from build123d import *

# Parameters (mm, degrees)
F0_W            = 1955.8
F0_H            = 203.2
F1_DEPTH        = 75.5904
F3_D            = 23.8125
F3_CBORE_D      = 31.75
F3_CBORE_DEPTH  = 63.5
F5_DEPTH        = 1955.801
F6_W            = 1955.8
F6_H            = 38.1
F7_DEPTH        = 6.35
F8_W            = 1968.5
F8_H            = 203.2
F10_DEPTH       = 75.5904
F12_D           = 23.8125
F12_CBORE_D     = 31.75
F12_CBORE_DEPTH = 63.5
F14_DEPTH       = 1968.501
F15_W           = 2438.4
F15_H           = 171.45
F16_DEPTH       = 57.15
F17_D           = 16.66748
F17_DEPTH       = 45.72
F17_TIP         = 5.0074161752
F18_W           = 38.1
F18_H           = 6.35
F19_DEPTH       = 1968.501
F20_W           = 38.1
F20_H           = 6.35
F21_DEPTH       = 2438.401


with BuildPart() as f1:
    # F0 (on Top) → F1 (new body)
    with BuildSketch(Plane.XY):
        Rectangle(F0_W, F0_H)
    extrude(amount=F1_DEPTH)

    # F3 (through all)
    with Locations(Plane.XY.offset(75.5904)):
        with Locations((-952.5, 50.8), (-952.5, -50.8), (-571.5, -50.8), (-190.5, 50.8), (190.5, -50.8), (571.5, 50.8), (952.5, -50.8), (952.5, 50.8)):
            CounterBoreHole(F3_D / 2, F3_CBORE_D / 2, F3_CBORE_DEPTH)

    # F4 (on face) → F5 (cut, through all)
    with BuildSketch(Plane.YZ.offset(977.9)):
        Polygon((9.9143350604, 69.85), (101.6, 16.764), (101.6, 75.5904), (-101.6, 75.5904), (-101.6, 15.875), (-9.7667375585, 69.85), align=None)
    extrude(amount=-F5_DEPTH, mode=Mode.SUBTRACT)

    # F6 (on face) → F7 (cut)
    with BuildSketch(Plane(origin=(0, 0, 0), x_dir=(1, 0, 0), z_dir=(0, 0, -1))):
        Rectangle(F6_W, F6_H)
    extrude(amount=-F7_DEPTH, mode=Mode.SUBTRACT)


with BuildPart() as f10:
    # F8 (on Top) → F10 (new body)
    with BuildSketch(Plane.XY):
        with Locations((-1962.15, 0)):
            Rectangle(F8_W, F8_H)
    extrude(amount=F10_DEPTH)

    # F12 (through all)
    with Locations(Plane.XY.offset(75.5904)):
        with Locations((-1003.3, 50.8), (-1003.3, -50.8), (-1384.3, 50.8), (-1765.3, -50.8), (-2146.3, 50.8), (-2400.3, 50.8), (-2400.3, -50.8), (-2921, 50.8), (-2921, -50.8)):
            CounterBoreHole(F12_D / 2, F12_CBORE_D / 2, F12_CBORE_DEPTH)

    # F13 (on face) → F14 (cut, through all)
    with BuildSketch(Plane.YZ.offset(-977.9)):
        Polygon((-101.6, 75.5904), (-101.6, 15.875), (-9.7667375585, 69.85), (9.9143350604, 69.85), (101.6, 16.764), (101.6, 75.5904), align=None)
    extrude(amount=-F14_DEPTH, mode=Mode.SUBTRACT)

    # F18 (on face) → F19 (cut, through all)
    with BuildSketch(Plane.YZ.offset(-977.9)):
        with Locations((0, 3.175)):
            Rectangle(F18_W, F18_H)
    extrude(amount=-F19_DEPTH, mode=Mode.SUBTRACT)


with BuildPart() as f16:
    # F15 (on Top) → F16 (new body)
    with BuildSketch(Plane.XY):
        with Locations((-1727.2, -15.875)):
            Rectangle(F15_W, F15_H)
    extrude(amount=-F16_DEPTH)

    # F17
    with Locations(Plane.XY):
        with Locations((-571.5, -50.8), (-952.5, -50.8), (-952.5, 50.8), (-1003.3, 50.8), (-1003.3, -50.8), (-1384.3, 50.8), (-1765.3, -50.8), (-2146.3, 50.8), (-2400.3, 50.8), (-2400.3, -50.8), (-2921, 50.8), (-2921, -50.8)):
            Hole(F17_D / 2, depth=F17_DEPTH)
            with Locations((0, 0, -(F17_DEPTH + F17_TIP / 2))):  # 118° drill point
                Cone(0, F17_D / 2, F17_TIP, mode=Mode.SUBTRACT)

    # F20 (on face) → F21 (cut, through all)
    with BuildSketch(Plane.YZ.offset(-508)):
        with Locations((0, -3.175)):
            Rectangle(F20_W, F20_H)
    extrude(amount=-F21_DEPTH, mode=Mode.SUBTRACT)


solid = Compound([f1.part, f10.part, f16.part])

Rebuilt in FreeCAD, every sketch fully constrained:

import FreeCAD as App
import Part
import Sketcher
from FreeCAD import Vector
Q = App.Units.Quantity


def add_polygon(sketch, points):
    """Adds a closed chain of lines whose ends are joined by coincident constraints."""
    first, n = sketch.GeometryCount, len(points)
    for a, b in zip(points, points[1:] + points[:1]):
        sketch.addGeometry(Part.LineSegment(App.Vector(*a, 0), App.Vector(*b, 0)), False)
    for i in range(n):
        sketch.addConstraint(Sketcher.Constraint("Coincident", first + i, 2, first + (i + 1) % n, 1))

doc = App.newDocument("Part")
body = doc.addObject("PartDesign::Body", "Body")

# Sketch on XY plane
sketch1 = body.newObject("Sketcher::SketchObject", "Sketch")
sketch1.AttachmentSupport = (doc.getObject("XY_Plane"), [""])
sketch1.MapMode = "FlatFace"
add_polygon(sketch1, [(-978, 102), (-978, -102), (978, -102), (978, 102)])  # lines 0-3
sketch1.addConstraint(Sketcher.Constraint("Vertical", 0))
sketch1.addConstraint(Sketcher.Constraint("Horizontal", 1))
sketch1.addConstraint(Sketcher.Constraint("Vertical", 2))
sketch1.addConstraint(Sketcher.Constraint("Horizontal", 3))
sketch1.addConstraint(Sketcher.Constraint("Symmetric", 0, 2, 2, 2, -1, 1))
sketch1.addConstraint(Sketcher.Constraint("DistanceX", 1, 1, 1, 2, Q("77 in")))
sketch1.addConstraint(Sketcher.Constraint("DistanceY", 0, 2, 0, 1, Q("8 in")))
pad1 = body.newObject("PartDesign::Pad", "Pad")
pad1.Profile = sketch1
pad1.Length = Q("2.976 in")

# Sketch on XY plane
sketch2 = body.newObject("Sketcher::SketchObject", "Sketch001")
sketch2.AttachmentSupport = (doc.getObject("XY_Plane"), [""])
sketch2.MapMode = "FlatFace"
sketch2.AttachmentOffset = App.Placement(Vector(0, 0, 2.976 * 25.4), App.Rotation())
sketch2.addGeometry(Part.Circle(Vector(-952, 51, 0), Vector(0, 0, 1), 12), False)
sketch2.addGeometry(Part.Circle(Vector(-952, -51, 0), Vector(0, 0, 1), 12), False)
sketch2.addGeometry(Part.Circle(Vector(-572, -51, 0), Vector(0, 0, 1), 12), False)
sketch2.addGeometry(Part.Circle(Vector(-190, 51, 0), Vector(0, 0, 1), 12), False)
sketch2.addGeometry(Part.Circle(Vector(190, -51, 0), Vector(0, 0, 1), 12), False)
sketch2.addGeometry(Part.Circle(Vector(572, 51, 0), Vector(0, 0, 1), 12), False)
sketch2.addGeometry(Part.Circle(Vector(952, -51, 0), Vector(0, 0, 1), 12), False)
sketch2.addGeometry(Part.Circle(Vector(952, 51, 0), Vector(0, 0, 1), 12), False)
sketch2.addConstraint(Sketcher.Constraint("Equal", 0, 1))
sketch2.addConstraint(Sketcher.Constraint("Equal", 1, 2))
sketch2.addConstraint(Sketcher.Constraint("Equal", 2, 3))
sketch2.addConstraint(Sketcher.Constraint("Equal", 3, 4))
sketch2.addConstraint(Sketcher.Constraint("Equal", 4, 5))
sketch2.addConstraint(Sketcher.Constraint("Equal", 5, 6))
sketch2.addConstraint(Sketcher.Constraint("Equal", 6, 7))
sketch2.addConstraint(Sketcher.Constraint("Symmetric", 3, 3, 4, 3, -1, 1))
sketch2.addConstraint(Sketcher.Constraint("Symmetric", 2, 3, 5, 3, -1, 1))
sketch2.addConstraint(Sketcher.Constraint("Symmetric", 0, 3, 6, 3, -1, 1))
sketch2.addConstraint(Sketcher.Constraint("Symmetric", 1, 3, 7, 3, -1, 1))
sketch2.addConstraint(Sketcher.Constraint("Symmetric", 1, 3, 6, 3, -2))
sketch2.addConstraint(Sketcher.Constraint("Horizontal", 1, 3, 2, 3))
sketch2.addConstraint(Sketcher.Constraint("Horizontal", 0, 3, 3, 3))
sketch2.addConstraint(Sketcher.Constraint("Diameter", 0, Q("0.9375 in")))
sketch2.addConstraint(Sketcher.Constraint("DistanceY", -1, 1, 0, 3, Q("2 in")))
sketch2.addConstraint(Sketcher.Constraint("DistanceX", 1, 3, 2, 3, Q("15 in")))
sketch2.addConstraint(Sketcher.Constraint("DistanceX", 2, 3, 3, 3, Q("15 in")))
sketch2.addConstraint(Sketcher.Constraint("DistanceX", 3, 3, 4, 3, Q("15 in")))
doc.recompute()
hole = body.newObject("PartDesign::Hole", "Hole")
hole.Profile = sketch2
hole.ThreadType = "None"
hole.Diameter = Q("0.9375 in")
hole.DepthType = "ThroughAll"
hole.HoleCutType = "Counterbore"
hole.HoleCutDiameter = Q("1.25 in")
hole.HoleCutDepth = Q("2.5 in")

# Sketch on YZ plane
sketch3 = body.newObject("Sketcher::SketchObject", "Sketch002")
sketch3.AttachmentSupport = (doc.getObject("YZ_Plane"), [""])
sketch3.MapMode = "FlatFace"
sketch3.AttachmentOffset = App.Placement(Vector(0, 0, 38.5 * 25.4), App.Rotation())
add_polygon(sketch3, [(10, 70), (102, 17), (102, 76), (-102, 76), (-102, 16), (-10, 70)])  # lines 0-5
sketch3.addConstraint(Sketcher.Constraint("Vertical", 1))
sketch3.addConstraint(Sketcher.Constraint("Horizontal", 2))
sketch3.addConstraint(Sketcher.Constraint("Vertical", 3))
sketch3.addConstraint(Sketcher.Constraint("Horizontal", 5))
sketch3.addConstraint(Sketcher.Constraint("DistanceX", 2, 2, 2, 1, Q("8 in")))
sketch3.addConstraint(Sketcher.Constraint("DistanceX", -1, 1, 0, 2, Q("4 in")))
sketch3.addConstraint(Sketcher.Constraint("DistanceY", 1, 1, 1, 2, Q("2.316 in")))
sketch3.addConstraint(Sketcher.Constraint("DistanceY", 3, 2, 3, 1, Q("2.351 in")))
sketch3.addConstraint(Sketcher.Constraint("DistanceY", -1, 1, 0, 2, Q("0.66 in")))
sketch3.addConstraint(Sketcher.Constraint("DistanceY", -1, 1, 4, 2, Q("2.75 in")))
sketch3.addConstraint(Sketcher.Constraint("Distance", 4, Q("106.520649 mm")))
sketch3.addConstraint(Sketcher.Constraint("DistanceX", 5, 1, 5, 2, Q("19.681073 mm")))
pocket1 = body.newObject("PartDesign::Pocket", "Pocket")
pocket1.Profile = sketch3
pocket1.Type = "ThroughAll"

# Sketch on XY plane
sketch4 = body.newObject("Sketcher::SketchObject", "Sketch003")
sketch4.AttachmentSupport = (doc.getObject("XY_Plane"), [""])
sketch4.MapMode = "FlatFace"
add_polygon(sketch4, [(-978, -19), (-978, 19), (978, 19), (978, -19)])  # lines 0-3
sketch4.addConstraint(Sketcher.Constraint("Vertical", 0))
sketch4.addConstraint(Sketcher.Constraint("Horizontal", 1))
sketch4.addConstraint(Sketcher.Constraint("Vertical", 2))
sketch4.addConstraint(Sketcher.Constraint("Horizontal", 3))
sketch4.addConstraint(Sketcher.Constraint("Symmetric", 0, 2, 2, 2, -1, 1))
sketch4.addConstraint(Sketcher.Constraint("DistanceX", 1, 1, 1, 2, Q("77 in")))
sketch4.addConstraint(Sketcher.Constraint("DistanceY", 0, 1, 0, 2, Q("1.5 in")))
pocket2 = body.newObject("PartDesign::Pocket", "Pocket001")
pocket2.Profile = sketch4
pocket2.Length = Q("0.25 in")
pocket2.Reversed = True
body2 = doc.addObject("PartDesign::Body", "Body001")

# Sketch on XY plane
sketch5 = body2.newObject("Sketcher::SketchObject", "Sketch004")
sketch5.AttachmentSupport = (doc.getObject("XY_Plane001"), [""])
sketch5.MapMode = "FlatFace"
add_polygon(sketch5, [(-2946, 102), (-2946, -102), (-978, -102), (-978, 102)])  # lines 0-3
sketch5.addConstraint(Sketcher.Constraint("Vertical", 0))
sketch5.addConstraint(Sketcher.Constraint("Horizontal", 1))
sketch5.addConstraint(Sketcher.Constraint("Vertical", 2))
sketch5.addConstraint(Sketcher.Constraint("Horizontal", 3))
sketch5.addConstraint(Sketcher.Constraint("DistanceY", 0, 2, 0, 1, Q("8 in")))
sketch5.addConstraint(Sketcher.Constraint("DistanceX", 1, 1, 1, 2, Q("77.5 in")))
sketch5.addConstraint(Sketcher.Constraint("DistanceX", 0, 2, -1, 1, Q("116 in")))
sketch5.addConstraint(Sketcher.Constraint("DistanceY", 0, 2, -1, 1, Q("4 in")))
pad2 = body2.newObject("PartDesign::Pad", "Pad001")
pad2.Profile = sketch5
pad2.Length = Q("2.976 in")

# Sketch on XY plane
sketch6 = body2.newObject("Sketcher::SketchObject", "Sketch005")
sketch6.AttachmentSupport = (doc.getObject("XY_Plane001"), [""])
sketch6.MapMode = "FlatFace"
sketch6.AttachmentOffset = App.Placement(Vector(0, 0, 2.976 * 25.4), App.Rotation())
sketch6.addGeometry(Part.Circle(Vector(-1003, 51, 0), Vector(0, 0, 1), 12), False)
sketch6.addGeometry(Part.Circle(Vector(-1003, -51, 0), Vector(0, 0, 1), 12), False)
sketch6.addGeometry(Part.Circle(Vector(-1384, 51, 0), Vector(0, 0, 1), 12), False)
sketch6.addGeometry(Part.Circle(Vector(-1765, -51, 0), Vector(0, 0, 1), 12), False)
sketch6.addGeometry(Part.Circle(Vector(-2146, 51, 0), Vector(0, 0, 1), 12), False)
sketch6.addGeometry(Part.Circle(Vector(-2400, 51, 0), Vector(0, 0, 1), 12), False)
sketch6.addGeometry(Part.Circle(Vector(-2400, -51, 0), Vector(0, 0, 1), 12), False)
sketch6.addGeometry(Part.Circle(Vector(-2921, 51, 0), Vector(0, 0, 1), 12), False)
sketch6.addGeometry(Part.Circle(Vector(-2921, -51, 0), Vector(0, 0, 1), 12), False)
sketch6.addConstraint(Sketcher.Constraint("Equal", 0, 1))
sketch6.addConstraint(Sketcher.Constraint("Equal", 1, 2))
sketch6.addConstraint(Sketcher.Constraint("Equal", 2, 3))
sketch6.addConstraint(Sketcher.Constraint("Equal", 3, 4))
sketch6.addConstraint(Sketcher.Constraint("Equal", 4, 5))
sketch6.addConstraint(Sketcher.Constraint("Equal", 5, 6))
sketch6.addConstraint(Sketcher.Constraint("Equal", 6, 7))
sketch6.addConstraint(Sketcher.Constraint("Equal", 7, 8))
sketch6.addConstraint(Sketcher.Constraint("Symmetric", 0, 3, 1, 3, -1))
sketch6.addConstraint(Sketcher.Constraint("Symmetric", 5, 3, 6, 3, -1))
sketch6.addConstraint(Sketcher.Constraint("Symmetric", 7, 3, 8, 3, -1))
sketch6.addConstraint(Sketcher.Constraint("Horizontal", 0, 3, 2, 3))
sketch6.addConstraint(Sketcher.Constraint("Horizontal", 1, 3, 3, 3))
sketch6.addConstraint(Sketcher.Constraint("Horizontal", 2, 3, 4, 3))
sketch6.addConstraint(Sketcher.Constraint("Horizontal", 4, 3, 5, 3))
sketch6.addConstraint(Sketcher.Constraint("Horizontal", 5, 3, 7, 3))
sketch6.addConstraint(Sketcher.Constraint("Diameter", 0, Q("0.9375 in")))
sketch6.addConstraint(Sketcher.Constraint("DistanceY", -1, 1, 0, 3, Q("2 in")))
sketch6.addConstraint(Sketcher.Constraint("DistanceX", 7, 3, -1, 1, Q("115 in")))
sketch6.addConstraint(Sketcher.Constraint("DistanceX", 2, 3, 0, 3, Q("15 in")))
sketch6.addConstraint(Sketcher.Constraint("DistanceX", 3, 3, 2, 3, Q("15 in")))
sketch6.addConstraint(Sketcher.Constraint("DistanceX", 4, 3, 3, 3, Q("15 in")))
sketch6.addConstraint(Sketcher.Constraint("DistanceX", 5, 3, 4, 3, Q("10 in")))
sketch6.addConstraint(Sketcher.Constraint("DistanceX", 0, 3, -1, 1, Q("39.5 in")))
doc.recompute()
hole2 = body2.newObject("PartDesign::Hole", "Hole001")
hole2.Profile = sketch6
hole2.ThreadType = "None"
hole2.Diameter = Q("0.9375 in")
hole2.DepthType = "ThroughAll"
hole2.HoleCutType = "Counterbore"
hole2.HoleCutDiameter = Q("1.25 in")
hole2.HoleCutDepth = Q("2.5 in")

# Sketch on YZ plane
sketch7 = body2.newObject("Sketcher::SketchObject", "Sketch006")
sketch7.AttachmentSupport = (doc.getObject("YZ_Plane001"), [""])
sketch7.MapMode = "FlatFace"
sketch7.AttachmentOffset = App.Placement(Vector(0, 0, -38.5 * 25.4), App.Rotation())
add_polygon(sketch7, [(-102, 76), (-102, 16), (-10, 70), (10, 70), (102, 17), (102, 76)])  # lines 0-5
sketch7.addConstraint(Sketcher.Constraint("Vertical", 0))
sketch7.addConstraint(Sketcher.Constraint("Horizontal", 2))
sketch7.addConstraint(Sketcher.Constraint("Vertical", 4))
sketch7.addConstraint(Sketcher.Constraint("Horizontal", 5))
sketch7.addConstraint(Sketcher.Constraint("DistanceX", 5, 2, 5, 1, Q("8 in")))
sketch7.addConstraint(Sketcher.Constraint("DistanceX", 0, 2, -1, 1, Q("4 in")))
sketch7.addConstraint(Sketcher.Constraint("DistanceY", 0, 2, 0, 1, Q("2.351 in")))
sketch7.addConstraint(Sketcher.Constraint("DistanceY", 4, 1, 4, 2, Q("2.316 in")))
sketch7.addConstraint(Sketcher.Constraint("DistanceY", -1, 1, 1, 2, Q("2.75 in")))
sketch7.addConstraint(Sketcher.Constraint("DistanceY", -1, 1, 3, 2, Q("0.66 in")))
sketch7.addConstraint(Sketcher.Constraint("Distance", 1, Q("106.520649 mm")))
sketch7.addConstraint(Sketcher.Constraint("DistanceX", 2, 1, 2, 2, Q("19.681073 mm")))
pocket3 = body2.newObject("PartDesign::Pocket", "Pocket002")
pocket3.Profile = sketch7
pocket3.Type = "ThroughAll"

# Sketch on YZ plane
sketch8 = body2.newObject("Sketcher::SketchObject", "Sketch007")
sketch8.AttachmentSupport = (doc.getObject("YZ_Plane001"), [""])
sketch8.MapMode = "FlatFace"
sketch8.AttachmentOffset = App.Placement(Vector(0, 0, -38.5 * 25.4), App.Rotation())
add_polygon(sketch8, [(-19, 6), (-19, 0), (19, 0), (19, 6)])  # lines 0-3
sketch8.addConstraint(Sketcher.Constraint("Vertical", 0))
sketch8.addConstraint(Sketcher.Constraint("Horizontal", 1))
sketch8.addConstraint(Sketcher.Constraint("Vertical", 2))
sketch8.addConstraint(Sketcher.Constraint("Horizontal", 3))
sketch8.addConstraint(Sketcher.Constraint("Symmetric", 0, 2, 1, 2, -1, 1))
sketch8.addConstraint(Sketcher.Constraint("DistanceX", 1, 1, 1, 2, Q("1.5 in")))
sketch8.addConstraint(Sketcher.Constraint("DistanceY", 0, 2, 0, 1, Q("0.25 in")))
pocket4 = body2.newObject("PartDesign::Pocket", "Pocket003")
pocket4.Profile = sketch8
pocket4.Type = "ThroughAll"
body3 = doc.addObject("PartDesign::Body", "Body002")

# Sketch on XY plane
sketch9 = body3.newObject("Sketcher::SketchObject", "Sketch008")
sketch9.AttachmentSupport = (doc.getObject("XY_Plane002"), [""])
sketch9.MapMode = "FlatFace"
add_polygon(sketch9, [(-2946, 70), (-2946, -102), (-508, -102), (-508, 70)])  # lines 0-3
sketch9.addConstraint(Sketcher.Constraint("Vertical", 0))
sketch9.addConstraint(Sketcher.Constraint("Horizontal", 1))
sketch9.addConstraint(Sketcher.Constraint("Vertical", 2))
sketch9.addConstraint(Sketcher.Constraint("Horizontal", 3))
sketch9.addConstraint(Sketcher.Constraint("DistanceX", 1, 1, 1, 2, Q("96 in")))
sketch9.addConstraint(Sketcher.Constraint("DistanceX", 0, 2, -1, 1, Q("116 in")))
sketch9.addConstraint(Sketcher.Constraint("DistanceY", 0, 2, -1, 1, Q("4 in")))
sketch9.addConstraint(Sketcher.Constraint("DistanceY", 0, 2, 0, 1, Q("6.75 in")))
pad3 = body3.newObject("PartDesign::Pad", "Pad002")
pad3.Profile = sketch9
pad3.Length = Q("2.25 in")
pad3.Reversed = True

# Sketch on XY plane
sketch10 = body3.newObject("Sketcher::SketchObject", "Sketch009")
sketch10.AttachmentSupport = (doc.getObject("XY_Plane002"), [""])
sketch10.MapMode = "FlatFace"
sketch10.addGeometry(Part.Circle(Vector(-572, -51, 0), Vector(0, 0, 1), 8), False)
sketch10.addGeometry(Part.Circle(Vector(-952, -51, 0), Vector(0, 0, 1), 8), False)
sketch10.addGeometry(Part.Circle(Vector(-952, 51, 0), Vector(0, 0, 1), 8), False)
sketch10.addGeometry(Part.Circle(Vector(-1003, 51, 0), Vector(0, 0, 1), 8), False)
sketch10.addGeometry(Part.Circle(Vector(-1003, -51, 0), Vector(0, 0, 1), 8), False)
sketch10.addGeometry(Part.Circle(Vector(-1384, 51, 0), Vector(0, 0, 1), 8), False)
sketch10.addGeometry(Part.Circle(Vector(-1765, -51, 0), Vector(0, 0, 1), 8), False)
sketch10.addGeometry(Part.Circle(Vector(-2146, 51, 0), Vector(0, 0, 1), 8), False)
sketch10.addGeometry(Part.Circle(Vector(-2400, 51, 0), Vector(0, 0, 1), 8), False)
sketch10.addGeometry(Part.Circle(Vector(-2400, -51, 0), Vector(0, 0, 1), 8), False)
sketch10.addGeometry(Part.Circle(Vector(-2921, 51, 0), Vector(0, 0, 1), 8), False)
sketch10.addGeometry(Part.Circle(Vector(-2921, -51, 0), Vector(0, 0, 1), 8), False)
sketch10.addConstraint(Sketcher.Constraint("Equal", 0, 1))
sketch10.addConstraint(Sketcher.Constraint("Equal", 1, 2))
sketch10.addConstraint(Sketcher.Constraint("Equal", 2, 3))
sketch10.addConstraint(Sketcher.Constraint("Equal", 3, 4))
sketch10.addConstraint(Sketcher.Constraint("Equal", 4, 5))
sketch10.addConstraint(Sketcher.Constraint("Equal", 5, 6))
sketch10.addConstraint(Sketcher.Constraint("Equal", 6, 7))
sketch10.addConstraint(Sketcher.Constraint("Equal", 7, 8))
sketch10.addConstraint(Sketcher.Constraint("Equal", 8, 9))
sketch10.addConstraint(Sketcher.Constraint("Equal", 9, 10))
sketch10.addConstraint(Sketcher.Constraint("Equal", 10, 11))
sketch10.addConstraint(Sketcher.Constraint("Symmetric", 1, 3, 2, 3, -1))
sketch10.addConstraint(Sketcher.Constraint("Symmetric", 3, 3, 4, 3, -1))
sketch10.addConstraint(Sketcher.Constraint("Symmetric", 8, 3, 9, 3, -1))
sketch10.addConstraint(Sketcher.Constraint("Symmetric", 10, 3, 11, 3, -1))
sketch10.addConstraint(Sketcher.Constraint("Horizontal", 0, 3, 1, 3))
sketch10.addConstraint(Sketcher.Constraint("Horizontal", 2, 3, 3, 3))
sketch10.addConstraint(Sketcher.Constraint("Horizontal", 3, 3, 5, 3))
sketch10.addConstraint(Sketcher.Constraint("Horizontal", 4, 3, 6, 3))
sketch10.addConstraint(Sketcher.Constraint("Horizontal", 5, 3, 7, 3))
sketch10.addConstraint(Sketcher.Constraint("Horizontal", 7, 3, 8, 3))
sketch10.addConstraint(Sketcher.Constraint("Horizontal", 8, 3, 10, 3))
sketch10.addConstraint(Sketcher.Constraint("DistanceY", 0, 3, -1, 1, Q("2 in")))
sketch10.addConstraint(Sketcher.Constraint("DistanceX", 10, 3, -1, 1, Q("115 in")))
sketch10.addConstraint(Sketcher.Constraint("DistanceX", 1, 3, 0, 3, Q("15 in")))
sketch10.addConstraint(Sketcher.Constraint("DistanceX", 3, 3, 2, 3, Q("2 in")))
sketch10.addConstraint(Sketcher.Constraint("DistanceX", 5, 3, 3, 3, Q("15 in")))
sketch10.addConstraint(Sketcher.Constraint("DistanceX", 6, 3, 5, 3, Q("15 in")))
sketch10.addConstraint(Sketcher.Constraint("DistanceX", 7, 3, 6, 3, Q("15 in")))
sketch10.addConstraint(Sketcher.Constraint("DistanceX", 8, 3, 7, 3, Q("10 in")))
sketch10.addConstraint(Sketcher.Constraint("Diameter", 0, Q("0.6562 in")))
sketch10.addConstraint(Sketcher.Constraint("DistanceX", 0, 3, -1, 1, Q("22.5 in")))
doc.recompute()
hole3 = body3.newObject("PartDesign::Hole", "Hole002")
hole3.Profile = sketch10
hole3.ThreadType = "None"
hole3.Diameter = Q("0.6562 in")
hole3.DepthType = "Dimension"
hole3.Depth = Q("1.8 in")
hole3.DrillPoint = "Angled"
hole3.DrillPointAngle = 118

# Sketch on YZ plane
sketch11 = body3.newObject("Sketcher::SketchObject", "Sketch010")
sketch11.AttachmentSupport = (doc.getObject("YZ_Plane002"), [""])
sketch11.MapMode = "FlatFace"
sketch11.AttachmentOffset = App.Placement(Vector(0, 0, -20 * 25.4), App.Rotation())
add_polygon(sketch11, [(-19, 0), (-19, -6), (19, -6), (19, 0)])  # lines 0-3
sketch11.addConstraint(Sketcher.Constraint("Vertical", 0))
sketch11.addConstraint(Sketcher.Constraint("Horizontal", 1))
sketch11.addConstraint(Sketcher.Constraint("Vertical", 2))
sketch11.addConstraint(Sketcher.Constraint("Horizontal", 3))
sketch11.addConstraint(Sketcher.Constraint("Symmetric", 2, 2, 3, 2, -1, 1))
sketch11.addConstraint(Sketcher.Constraint("DistanceX", 1, 1, 1, 2, Q("1.5 in")))
sketch11.addConstraint(Sketcher.Constraint("DistanceY", 0, 2, 0, 1, Q("0.25 in")))
pocket5 = body3.newObject("PartDesign::Pocket", "Pocket004")
pocket5.Profile = sketch11
pocket5.Type = "ThroughAll"

doc.recompute()
